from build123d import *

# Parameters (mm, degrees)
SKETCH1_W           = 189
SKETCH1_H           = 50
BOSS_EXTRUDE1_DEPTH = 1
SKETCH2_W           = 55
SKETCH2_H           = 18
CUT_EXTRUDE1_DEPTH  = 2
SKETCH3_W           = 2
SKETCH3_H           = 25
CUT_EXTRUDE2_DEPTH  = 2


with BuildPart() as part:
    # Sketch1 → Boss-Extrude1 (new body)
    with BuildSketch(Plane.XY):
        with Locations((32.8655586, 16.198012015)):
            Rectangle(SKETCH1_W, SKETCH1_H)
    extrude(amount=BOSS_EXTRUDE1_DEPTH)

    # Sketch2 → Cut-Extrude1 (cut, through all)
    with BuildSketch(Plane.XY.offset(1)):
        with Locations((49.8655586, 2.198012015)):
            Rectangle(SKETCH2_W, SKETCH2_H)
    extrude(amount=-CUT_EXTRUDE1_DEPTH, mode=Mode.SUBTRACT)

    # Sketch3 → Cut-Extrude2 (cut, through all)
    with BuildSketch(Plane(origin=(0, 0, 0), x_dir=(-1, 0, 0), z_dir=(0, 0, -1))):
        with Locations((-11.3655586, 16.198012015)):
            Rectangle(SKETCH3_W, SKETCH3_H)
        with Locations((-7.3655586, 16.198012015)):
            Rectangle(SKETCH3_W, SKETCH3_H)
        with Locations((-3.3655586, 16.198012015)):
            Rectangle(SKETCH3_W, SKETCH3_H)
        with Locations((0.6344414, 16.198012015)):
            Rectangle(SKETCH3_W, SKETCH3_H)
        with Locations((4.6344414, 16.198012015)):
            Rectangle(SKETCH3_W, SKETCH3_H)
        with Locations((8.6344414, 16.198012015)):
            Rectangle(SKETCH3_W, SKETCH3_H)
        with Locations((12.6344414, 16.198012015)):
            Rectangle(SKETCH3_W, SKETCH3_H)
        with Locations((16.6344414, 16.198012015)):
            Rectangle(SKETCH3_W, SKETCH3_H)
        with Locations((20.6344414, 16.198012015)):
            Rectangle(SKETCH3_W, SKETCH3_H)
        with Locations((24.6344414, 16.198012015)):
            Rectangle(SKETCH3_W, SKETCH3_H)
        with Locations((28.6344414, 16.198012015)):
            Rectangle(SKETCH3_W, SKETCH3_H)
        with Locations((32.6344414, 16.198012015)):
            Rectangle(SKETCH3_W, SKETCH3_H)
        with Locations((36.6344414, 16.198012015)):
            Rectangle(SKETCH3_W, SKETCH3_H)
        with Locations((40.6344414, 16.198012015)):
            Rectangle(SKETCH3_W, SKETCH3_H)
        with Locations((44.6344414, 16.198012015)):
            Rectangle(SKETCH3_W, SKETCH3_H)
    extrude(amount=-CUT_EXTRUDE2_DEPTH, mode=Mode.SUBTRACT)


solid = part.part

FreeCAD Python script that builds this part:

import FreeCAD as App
import Part
import Sketcher

V = App.Vector

doc = App.newDocument("Part")
body = doc.addObject("PartDesign::Body", "Body")

# Sketch on XY plane
sketch1 = body.newObject("Sketcher::SketchObject", "Sketch")
sketch1.AttachmentSupport = (doc.getObject("XY_Plane"), [""])
sketch1.MapMode = "FlatFace"
sketch1.addGeometry([
    Part.LineSegment(V(-62, 41, 0), V(-62, -9, 0)),
    Part.LineSegment(V(-62, -9, 0), V(127, -9, 0)),
    Part.LineSegment(V(127, -9, 0), V(127, 41, 0)),
    Part.LineSegment(V(127, 41, 0), V(-62, 41, 0)),
], False)
sketch1.addConstraint([
    Sketcher.Constraint("Coincident", 0, 2, 1, 1),
    Sketcher.Constraint("Coincident", 1, 2, 2, 1),
    Sketcher.Constraint("Coincident", 2, 2, 3, 1),
    Sketcher.Constraint("Coincident", 3, 2, 0, 1),
    Sketcher.Constraint("Vertical", 0),
    Sketcher.Constraint("Horizontal", 1),
    Sketcher.Constraint("Vertical", 2),
    Sketcher.Constraint("Horizontal", 3),
    Sketcher.Constraint("DistanceX", 1, 1, 1, 2, 189.0),
    Sketcher.Constraint("DistanceY", 0, 2, 0, 1, 50.0),
    Sketcher.Constraint("DistanceX", 0, 2, -1, 1, 61.634441),
    Sketcher.Constraint("DistanceY", 0, 2, -1, 1, 8.801988),
])
pad1 = body.newObject("PartDesign::Pad", "Pad")
pad1.Profile = sketch1
pad1.Length = 1

# Sketch on XY plane
sketch2 = body.newObject("Sketcher::SketchObject", "Sketch001")
sketch2.AttachmentSupport = (doc.getObject("XY_Plane"), [""])
sketch2.MapMode = "FlatFace"
sketch2.AttachmentOffset = App.Placement(V(0, 0, 1), App.Rotation())
sketch2.addGeometry([
    Part.LineSegment(V(22, 11, 0), V(22, -7, 0)),
    Part.LineSegment(V(22, -7, 0), V(77, -7, 0)),
    Part.LineSegment(V(77, -7, 0), V(77, 11, 0)),
    Part.LineSegment(V(77, 11, 0), V(22, 11, 0)),
], False)
sketch2.addConstraint([
    Sketcher.Constraint("Coincident", 0, 2, 1, 1),
    Sketcher.Constraint("Coincident", 1, 2, 2, 1),
    Sketcher.Constraint("Coincident", 2, 2, 3, 1),
    Sketcher.Constraint("Coincident", 3, 2, 0, 1),
    Sketcher.Constraint("Vertical", 0),
    Sketcher.Constraint("Horizontal", 1),
    Sketcher.Constraint("Vertical", 2),
    Sketcher.Constraint("Horizontal", 3),
    Sketcher.Constraint("DistanceX", 1, 1, 1, 2, 55.0),
    Sketcher.Constraint("DistanceY", 0, 2, 0, 1, 18.0),
    Sketcher.Constraint("DistanceX", -1, 1, 0, 2, 22.365559),
    Sketcher.Constraint("DistanceY", 0, 2, -1, 1, 6.801988),
])
pocket1 = body.newObject("PartDesign::Pocket", "Pocket")
pocket1.Profile = sketch2
pocket1.Type = "ThroughAll"

# Sketch on XY plane
sketch3 = body.newObject("Sketcher::SketchObject", "Sketch002")
sketch3.AttachmentSupport = (doc.getObject("XY_Plane"), [""])
sketch3.MapMode = "FlatFace"
sketch3.addGeometry([
    Part.LineSegment(V(12.4, 28.7, 0), V(12.4, 3.7, 0)),  # 0
    Part.LineSegment(V(12.4, 3.7, 0), V(10.4, 3.7, 0)),  # 1
    Part.LineSegment(V(10.4, 3.7, 0), V(10.4, 28.7, 0)),  # 2
    Part.LineSegment(V(10.4, 28.7, 0), V(12.4, 28.7, 0)),  # 3
    Part.LineSegment(V(8.4, 28.7, 0), V(8.4, 3.7, 0)),  # 4
    Part.LineSegment(V(8.4, 3.7, 0), V(6.4, 3.7, 0)),  # 5
    Part.LineSegment(V(6.4, 3.7, 0), V(6.4, 28.7, 0)),  # 6
    Part.LineSegment(V(6.4, 28.7, 0), V(8.4, 28.7, 0)),  # 7
    Part.LineSegment(V(4.4, 28.7, 0), V(4.4, 3.7, 0)),  # 8
    Part.LineSegment(V(4.4, 3.7, 0), V(2.4, 3.7, 0)),  # 9
    Part.LineSegment(V(2.4, 3.7, 0), V(2.4, 28.7, 0)),  # 10
    Part.LineSegment(V(2.4, 28.7, 0), V(4.4, 28.7, 0)),  # 11
    Part.LineSegment(V(0.4, 28.7, 0), V(0.4, 3.7, 0)),  # 12
    Part.LineSegment(V(0.4, 3.7, 0), V(-1.6, 3.7, 0)),  # 13
    Part.LineSegment(V(-1.6, 3.7, 0), V(-1.6, 28.7, 0)),  # 14
    Part.LineSegment(V(-1.6, 28.7, 0), V(0.4, 28.7, 0)),  # 15
    Part.LineSegment(V(-3.6, 28.7, 0), V(-3.6, 3.7, 0)),  # 16
    Part.LineSegment(V(-3.6, 3.7, 0), V(-5.6, 3.7, 0)),  # 17
    Part.LineSegment(V(-5.6, 3.7, 0), V(-5.6, 28.7, 0)),  # 18
    Part.LineSegment(V(-5.6, 28.7, 0), V(-3.6, 28.7, 0)),  # 19
    Part.LineSegment(V(-7.6, 28.7, 0), V(-7.6, 3.7, 0)),  # 20
    Part.LineSegment(V(-7.6, 3.7, 0), V(-9.6, 3.7, 0)),  # 21
    Part.LineSegment(V(-9.6, 3.7, 0), V(-9.6, 28.7, 0)),  # 22
    Part.LineSegment(V(-9.6, 28.7, 0), V(-7.6, 28.7, 0)),  # 23
    Part.LineSegment(V(-11.6, 28.7, 0), V(-11.6, 3.7, 0)),  # 24
    Part.LineSegment(V(-11.6, 3.7, 0), V(-13.6, 3.7, 0)),  # 25
    Part.LineSegment(V(-13.6, 3.7, 0), V(-13.6, 28.7, 0)),  # 26
    Part.LineSegment(V(-13.6, 28.7, 0), V(-11.6, 28.7, 0)),  # 27
    Part.LineSegment(V(-15.6, 28.7, 0), V(-15.6, 3.7, 0)),  # 28
    Part.LineSegment(V(-15.6, 3.7, 0), V(-17.6, 3.7, 0)),  # 29
    Part.LineSegment(V(-17.6, 3.7, 0), V(-17.6, 28.7, 0)),  # 30
    Part.LineSegment(V(-17.6, 28.7, 0), V(-15.6, 28.7, 0)),  # 31
    Part.LineSegment(V(-19.6, 28.7, 0), V(-19.6, 3.7, 0)),  # 32
    Part.LineSegment(V(-19.6, 3.7, 0), V(-21.6, 3.7, 0)),  # 33
    Part.LineSegment(V(-21.6, 3.7, 0), V(-21.6, 28.7, 0)),  # 34
    Part.LineSegment(V(-21.6, 28.7, 0), V(-19.6, 28.7, 0)),  # 35
    Part.LineSegment(V(-23.6, 28.7, 0), V(-23.6, 3.7, 0)),  # 36
    Part.LineSegment(V(-23.6, 3.7, 0), V(-25.6, 3.7, 0)),  # 37
    Part.LineSegment(V(-25.6, 3.7, 0), V(-25.6, 28.7, 0)),  # 38
    Part.LineSegment(V(-25.6, 28.7, 0), V(-23.6, 28.7, 0)),  # 39
    Part.LineSegment(V(-27.6, 28.7, 0), V(-27.6, 3.7, 0)),  # 40
    Part.LineSegment(V(-27.6, 3.7, 0), V(-29.6, 3.7, 0)),  # 41
    Part.LineSegment(V(-29.6, 3.7, 0), V(-29.6, 28.7, 0)),  # 42
    Part.LineSegment(V(-29.6, 28.7, 0), V(-27.6, 28.7, 0)),  # 43
    Part.LineSegment(V(-31.6, 28.7, 0), V(-31.6, 3.7, 0)),  # 44
    Part.LineSegment(V(-31.6, 3.7, 0), V(-33.6, 3.7, 0)),  # 45
    Part.LineSegment(V(-33.6, 3.7, 0), V(-33.6, 28.7, 0)),  # 46
    Part.LineSegment(V(-33.6, 28.7, 0), V(-31.6, 28.7, 0)),  # 47
    Part.LineSegment(V(-35.6, 28.7, 0), V(-35.6, 3.7, 0)),  # 48
    Part.LineSegment(V(-35.6, 3.7, 0), V(-37.6, 3.7, 0)),  # 49
    Part.LineSegment(V(-37.6, 3.7, 0), V(-37.6, 28.7, 0)),  # 50
    Part.LineSegment(V(-37.6, 28.7, 0), V(-35.6, 28.7, 0)),  # 51
    Part.LineSegment(V(-39.6, 28.7, 0), V(-39.6, 3.7, 0)),  # 52
    Part.LineSegment(V(-39.6, 3.7, 0), V(-41.6, 3.7, 0)),  # 53
    Part.LineSegment(V(-41.6, 3.7, 0), V(-41.6, 28.7, 0)),  # 54
    Part.LineSegment(V(-41.6, 28.7, 0), V(-39.6, 28.7, 0)),  # 55
    Part.LineSegment(V(-43.6, 28.7, 0), V(-43.6, 3.7, 0)),  # 56
    Part.LineSegment(V(-43.6, 3.7, 0), V(-45.6, 3.7, 0)),  # 57
    Part.LineSegment(V(-45.6, 3.7, 0), V(-45.6, 28.7, 0)),  # 58
    Part.LineSegment(V(-45.6, 28.7, 0), V(-43.6, 28.7, 0)),  # 59
], False)
sketch3.addConstraint([
    Sketcher.Constraint("Coincident", 0, 2, 1, 1),
    Sketcher.Constraint("Coincident", 1, 2, 2, 1),
    Sketcher.Constraint("Coincident", 2, 2, 3, 1),
    Sketcher.Constraint("Coincident", 3, 2, 0, 1),
    Sketcher.Constraint("Coincident", 4, 2, 5, 1),
    Sketcher.Constraint("Coincident", 5, 2, 6, 1),
    Sketcher.Constraint("Coincident", 6, 2, 7, 1),
    Sketcher.Constraint("Coincident", 7, 2, 4, 1),
    Sketcher.Constraint("Coincident", 8, 2, 9, 1),
    Sketcher.Constraint("Coincident", 9, 2, 10, 1),
    Sketcher.Constraint("Coincident", 10, 2, 11, 1),
    Sketcher.Constraint("Coincident", 11, 2, 8, 1),
    Sketcher.Constraint("Coincident", 12, 2, 13, 1),
    Sketcher.Constraint("Coincident", 13, 2, 14, 1),
    Sketcher.Constraint("Coincident", 14, 2, 15, 1),
    Sketcher.Constraint("Coincident", 15, 2, 12, 1),
    Sketcher.Constraint("Coincident", 16, 2, 17, 1),
    Sketcher.Constraint("Coincident", 17, 2, 18, 1),
    Sketcher.Constraint("Coincident", 18, 2, 19, 1),
    Sketcher.Constraint("Coincident", 19, 2, 16, 1),
    Sketcher.Constraint("Coincident", 20, 2, 21, 1),
    Sketcher.Constraint("Coincident", 21, 2, 22, 1),
    Sketcher.Constraint("Coincident", 22, 2, 23, 1),
    Sketcher.Constraint("Coincident", 23, 2, 20, 1),
    Sketcher.Constraint("Coincident", 24, 2, 25, 1),
    Sketcher.Constraint("Coincident", 25, 2, 26, 1),
    Sketcher.Constraint("Coincident", 26, 2, 27, 1),
    Sketcher.Constraint("Coincident", 27, 2, 24, 1),
    Sketcher.Constraint("Coincident", 28, 2, 29, 1),
    Sketcher.Constraint("Coincident", 29, 2, 30, 1),
    Sketcher.Constraint("Coincident", 30, 2, 31, 1),
    Sketcher.Constraint("Coincident", 31, 2, 28, 1),
    Sketcher.Constraint("Coincident", 32, 2, 33, 1),
    Sketcher.Constraint("Coincident", 33, 2, 34, 1),
    Sketcher.Constraint("Coincident", 34, 2, 35, 1),
    Sketcher.Constraint("Coincident", 35, 2, 32, 1),
    Sketcher.Constraint("Coincident", 36, 2, 37, 1),
    Sketcher.Constraint("Coincident", 37, 2, 38, 1),
    Sketcher.Constraint("Coincident", 38, 2, 39, 1),
    Sketcher.Constraint("Coincident", 39, 2, 36, 1),
    Sketcher.Constraint("Coincident", 40, 2, 41, 1),
    Sketcher.Constraint("Coincident", 41, 2, 42, 1),
    Sketcher.Constraint("Coincident", 42, 2, 43, 1),
    Sketcher.Constraint("Coincident", 43, 2, 40, 1),
    Sketcher.Constraint("Coincident", 44, 2, 45, 1),
    Sketcher.Constraint("Coincident", 45, 2, 46, 1),
    Sketcher.Constraint("Coincident", 46, 2, 47, 1),
    Sketcher.Constraint("Coincident", 47, 2, 44, 1),
    Sketcher.Constraint("Coincident", 48, 2, 49, 1),
    Sketcher.Constraint("Coincident", 49, 2, 50, 1),
    Sketcher.Constraint("Coincident", 50, 2, 51, 1),
    Sketcher.Constraint("Coincident", 51, 2, 48, 1),
    Sketcher.Constraint("Coincident", 52, 2, 53, 1),
    Sketcher.Constraint("Coincident", 53, 2, 54, 1),
    Sketcher.Constraint("Coincident", 54, 2, 55, 1),
    Sketcher.Constraint("Coincident", 55, 2, 52, 1),
    Sketcher.Constraint("Coincident", 56, 2, 57, 1),
    Sketcher.Constraint("Coincident", 57, 2, 58, 1),
    Sketcher.Constraint("Coincident", 58, 2, 59, 1),
    Sketcher.Constraint("Coincident", 59, 2, 56, 1),
    Sketcher.Constraint("Vertical", 0),
    Sketcher.Constraint("Horizontal", 1),
    Sketcher.Constraint("Vertical", 2),
    Sketcher.Constraint("Horizontal", 3),
    Sketcher.Constraint("Vertical", 4),
    Sketcher.Constraint("Horizontal", 5),
    Sketcher.Constraint("Vertical", 6),
    Sketcher.Constraint("Horizontal", 7),
    Sketcher.Constraint("Vertical", 8),
    Sketcher.Constraint("Horizontal", 9),
    Sketcher.Constraint("Vertical", 10),
    Sketcher.Constraint("Horizontal", 11),
    Sketcher.Constraint("Vertical", 12),
    Sketcher.Constraint("Horizontal", 13),
    Sketcher.Constraint("Vertical", 14),
    Sketcher.Constraint("Horizontal", 15),
    Sketcher.Constraint("Vertical", 16),
    Sketcher.Constraint("Horizontal", 17),
    Sketcher.Constraint("Vertical", 18),
    Sketcher.Constraint("Horizontal", 19),
    Sketcher.Constraint("Vertical", 20),
    Sketcher.Constraint("Horizontal", 21),
    Sketcher.Constraint("Vertical", 22),
    Sketcher.Constraint("Horizontal", 23),
    Sketcher.Constraint("Vertical", 24),
    Sketcher.Constraint("Horizontal", 25),
    Sketcher.Constraint("Vertical", 26),
    Sketcher.Constraint("Horizontal", 27),
    Sketcher.Constraint("Vertical", 28),
    Sketcher.Constraint("Horizontal", 29),
    Sketcher.Constraint("Vertical", 30),
    Sketcher.Constraint("Horizontal", 31),
    Sketcher.Constraint("Vertical", 32),
    Sketcher.Constraint("Horizontal", 33),
    Sketcher.Constraint("Vertical", 34),
    Sketcher.Constraint("Horizontal", 35),
    Sketcher.Constraint("Vertical", 36),
    Sketcher.Constraint("Horizontal", 37),
    Sketcher.Constraint("Vertical", 38),
    Sketcher.Constraint("Horizontal", 39),
    Sketcher.Constraint("Vertical", 40),
    Sketcher.Constraint("Horizontal", 41),
    Sketcher.Constraint("Vertical", 42),
    Sketcher.Constraint("Horizontal", 43),
    Sketcher.Constraint("Vertical", 44),
    Sketcher.Constraint("Horizontal", 45),
    Sketcher.Constraint("Vertical", 46),
    Sketcher.Constraint("Horizontal", 47),
    Sketcher.Constraint("Vertical", 48),
    Sketcher.Constraint("Horizontal", 49),
    Sketcher.Constraint("Vertical", 50),
    Sketcher.Constraint("Horizontal", 51),
    Sketcher.Constraint("Vertical", 52),
    Sketcher.Constraint("Horizontal", 53),
    Sketcher.Constraint("Vertical", 54),
    Sketcher.Constraint("Horizontal", 55),
    Sketcher.Constraint("Vertical", 56),
    Sketcher.Constraint("Horizontal", 57),
    Sketcher.Constraint("Vertical", 58),
    Sketcher.Constraint("Horizontal", 59),
    Sketcher.Constraint("Horizontal", 1, 2, 4, 2),
    Sketcher.Constraint("Horizontal", 3, 2, 6, 2),
    Sketcher.Constraint("Horizontal", 5, 2, 8, 2),
    Sketcher.Constraint("Horizontal", 7, 2, 10, 2),
    Sketcher.Constraint("Horizontal", 9, 2, 12, 2),
    Sketcher.Constraint("Horizontal", 11, 2, 14, 2),
    Sketcher.Constraint("Horizontal", 13, 2, 16, 2),
    Sketcher.Constraint("Horizontal", 15, 2, 18, 2),
    Sketcher.Constraint("Horizontal", 17, 2, 20, 2),
    Sketcher.Constraint("Horizontal", 19, 2, 22, 2),
    Sketcher.Constraint("Horizontal", 21, 2, 24, 2),
    Sketcher.Constraint("Horizontal", 23, 2, 26, 2),
    Sketcher.Constraint("Horizontal", 25, 2, 28, 2),
    Sketcher.Constraint("Horizontal", 27, 2, 30, 2),
    Sketcher.Constraint("Horizontal", 29, 2, 32, 2),
    Sketcher.Constraint("Horizontal", 31, 2, 34, 2),
    Sketcher.Constraint("Horizontal", 33, 2, 36, 2),
    Sketcher.Constraint("Horizontal", 35, 2, 38, 2),
    Sketcher.Constraint("Horizontal", 37, 2, 40, 2),
    Sketcher.Constraint("Horizontal", 39, 2, 42, 2),
    Sketcher.Constraint("Horizontal", 41, 2, 44, 2),
    Sketcher.Constraint("Horizontal", 43, 2, 46, 2),
    Sketcher.Constraint("Horizontal", 45, 2, 48, 2),
    Sketcher.Constraint("Horizontal", 47, 2, 50, 2),
    Sketcher.Constraint("Horizontal", 49, 2, 52, 2),
    Sketcher.Constraint("Horizontal", 51, 2, 54, 2),
    Sketcher.Constraint("Horizontal", 53, 2, 56, 2),
    Sketcher.Constraint("Horizontal", 55, 2, 58, 2),
    Sketcher.Constraint("Equal", 3, 5),
    Sketcher.Constraint("Equal", 7, 9),
    Sketcher.Constraint("Equal", 11, 13),
    Sketcher.Constraint("Equal", 15, 17),
    Sketcher.Constraint("Equal", 19, 21),
    Sketcher.Constraint("Equal", 23, 25),
    Sketcher.Constraint("Equal", 27, 29),
    Sketcher.Constraint("Equal", 31, 33),
    Sketcher.Constraint("Equal", 35, 37),
    Sketcher.Constraint("Equal", 39, 41),
    Sketcher.Constraint("Equal", 43, 45),
    Sketcher.Constraint("Equal", 47, 49),
    Sketcher.Constraint("Equal", 51, 53),
    Sketcher.Constraint("Equal", 55, 57),
    Sketcher.Constraint("DistanceX", 1, 2, 1, 1, 2.0),
    Sketcher.Constraint("DistanceY", 0, 2, 0, 1, 25.0),
    Sketcher.Constraint("DistanceX", 4, 2, 1, 2, 2.0),
    Sketcher.Constraint("DistanceX", 8, 2, 5, 2, 2.0),
    Sketcher.Constraint("DistanceX", 12, 2, 9, 2, 2.0),
    Sketcher.Constraint("DistanceX", 16, 2, 13, 2, 2.0),
    Sketcher.Constraint("DistanceX", 20, 2, 17, 2, 2.0),
    Sketcher.Constraint("DistanceX", 24, 2, 21, 2, 2.0),
    Sketcher.Constraint("DistanceX", 28, 2, 25, 2, 2.0),
    Sketcher.Constraint("DistanceX", 32, 2, 29, 2, 2.0),
    Sketcher.Constraint("DistanceX", 36, 2, 33, 2, 2.0),
    Sketcher.Constraint("DistanceX", 40, 2, 37, 2, 2.0),
    Sketcher.Constraint("DistanceX", 44, 2, 41, 2, 2.0),
    Sketcher.Constraint("DistanceX", 48, 2, 45, 2, 2.0),
    Sketcher.Constraint("DistanceX", 52, 2, 49, 2, 2.0),
    Sketcher.Constraint("DistanceX", 56, 2, 53, 2, 2.0),
    Sketcher.Constraint("DistanceX", -1, 1, 0, 2, 12.365559),
    Sketcher.Constraint("DistanceY", -1, 1, 0, 2, 3.698012),
])
pocket2 = body.newObject("PartDesign::Pocket", "Pocket001")
pocket2.Profile = sketch3
pocket2.Type = "ThroughAll"
pocket2.Reversed = True

doc.recompute()
